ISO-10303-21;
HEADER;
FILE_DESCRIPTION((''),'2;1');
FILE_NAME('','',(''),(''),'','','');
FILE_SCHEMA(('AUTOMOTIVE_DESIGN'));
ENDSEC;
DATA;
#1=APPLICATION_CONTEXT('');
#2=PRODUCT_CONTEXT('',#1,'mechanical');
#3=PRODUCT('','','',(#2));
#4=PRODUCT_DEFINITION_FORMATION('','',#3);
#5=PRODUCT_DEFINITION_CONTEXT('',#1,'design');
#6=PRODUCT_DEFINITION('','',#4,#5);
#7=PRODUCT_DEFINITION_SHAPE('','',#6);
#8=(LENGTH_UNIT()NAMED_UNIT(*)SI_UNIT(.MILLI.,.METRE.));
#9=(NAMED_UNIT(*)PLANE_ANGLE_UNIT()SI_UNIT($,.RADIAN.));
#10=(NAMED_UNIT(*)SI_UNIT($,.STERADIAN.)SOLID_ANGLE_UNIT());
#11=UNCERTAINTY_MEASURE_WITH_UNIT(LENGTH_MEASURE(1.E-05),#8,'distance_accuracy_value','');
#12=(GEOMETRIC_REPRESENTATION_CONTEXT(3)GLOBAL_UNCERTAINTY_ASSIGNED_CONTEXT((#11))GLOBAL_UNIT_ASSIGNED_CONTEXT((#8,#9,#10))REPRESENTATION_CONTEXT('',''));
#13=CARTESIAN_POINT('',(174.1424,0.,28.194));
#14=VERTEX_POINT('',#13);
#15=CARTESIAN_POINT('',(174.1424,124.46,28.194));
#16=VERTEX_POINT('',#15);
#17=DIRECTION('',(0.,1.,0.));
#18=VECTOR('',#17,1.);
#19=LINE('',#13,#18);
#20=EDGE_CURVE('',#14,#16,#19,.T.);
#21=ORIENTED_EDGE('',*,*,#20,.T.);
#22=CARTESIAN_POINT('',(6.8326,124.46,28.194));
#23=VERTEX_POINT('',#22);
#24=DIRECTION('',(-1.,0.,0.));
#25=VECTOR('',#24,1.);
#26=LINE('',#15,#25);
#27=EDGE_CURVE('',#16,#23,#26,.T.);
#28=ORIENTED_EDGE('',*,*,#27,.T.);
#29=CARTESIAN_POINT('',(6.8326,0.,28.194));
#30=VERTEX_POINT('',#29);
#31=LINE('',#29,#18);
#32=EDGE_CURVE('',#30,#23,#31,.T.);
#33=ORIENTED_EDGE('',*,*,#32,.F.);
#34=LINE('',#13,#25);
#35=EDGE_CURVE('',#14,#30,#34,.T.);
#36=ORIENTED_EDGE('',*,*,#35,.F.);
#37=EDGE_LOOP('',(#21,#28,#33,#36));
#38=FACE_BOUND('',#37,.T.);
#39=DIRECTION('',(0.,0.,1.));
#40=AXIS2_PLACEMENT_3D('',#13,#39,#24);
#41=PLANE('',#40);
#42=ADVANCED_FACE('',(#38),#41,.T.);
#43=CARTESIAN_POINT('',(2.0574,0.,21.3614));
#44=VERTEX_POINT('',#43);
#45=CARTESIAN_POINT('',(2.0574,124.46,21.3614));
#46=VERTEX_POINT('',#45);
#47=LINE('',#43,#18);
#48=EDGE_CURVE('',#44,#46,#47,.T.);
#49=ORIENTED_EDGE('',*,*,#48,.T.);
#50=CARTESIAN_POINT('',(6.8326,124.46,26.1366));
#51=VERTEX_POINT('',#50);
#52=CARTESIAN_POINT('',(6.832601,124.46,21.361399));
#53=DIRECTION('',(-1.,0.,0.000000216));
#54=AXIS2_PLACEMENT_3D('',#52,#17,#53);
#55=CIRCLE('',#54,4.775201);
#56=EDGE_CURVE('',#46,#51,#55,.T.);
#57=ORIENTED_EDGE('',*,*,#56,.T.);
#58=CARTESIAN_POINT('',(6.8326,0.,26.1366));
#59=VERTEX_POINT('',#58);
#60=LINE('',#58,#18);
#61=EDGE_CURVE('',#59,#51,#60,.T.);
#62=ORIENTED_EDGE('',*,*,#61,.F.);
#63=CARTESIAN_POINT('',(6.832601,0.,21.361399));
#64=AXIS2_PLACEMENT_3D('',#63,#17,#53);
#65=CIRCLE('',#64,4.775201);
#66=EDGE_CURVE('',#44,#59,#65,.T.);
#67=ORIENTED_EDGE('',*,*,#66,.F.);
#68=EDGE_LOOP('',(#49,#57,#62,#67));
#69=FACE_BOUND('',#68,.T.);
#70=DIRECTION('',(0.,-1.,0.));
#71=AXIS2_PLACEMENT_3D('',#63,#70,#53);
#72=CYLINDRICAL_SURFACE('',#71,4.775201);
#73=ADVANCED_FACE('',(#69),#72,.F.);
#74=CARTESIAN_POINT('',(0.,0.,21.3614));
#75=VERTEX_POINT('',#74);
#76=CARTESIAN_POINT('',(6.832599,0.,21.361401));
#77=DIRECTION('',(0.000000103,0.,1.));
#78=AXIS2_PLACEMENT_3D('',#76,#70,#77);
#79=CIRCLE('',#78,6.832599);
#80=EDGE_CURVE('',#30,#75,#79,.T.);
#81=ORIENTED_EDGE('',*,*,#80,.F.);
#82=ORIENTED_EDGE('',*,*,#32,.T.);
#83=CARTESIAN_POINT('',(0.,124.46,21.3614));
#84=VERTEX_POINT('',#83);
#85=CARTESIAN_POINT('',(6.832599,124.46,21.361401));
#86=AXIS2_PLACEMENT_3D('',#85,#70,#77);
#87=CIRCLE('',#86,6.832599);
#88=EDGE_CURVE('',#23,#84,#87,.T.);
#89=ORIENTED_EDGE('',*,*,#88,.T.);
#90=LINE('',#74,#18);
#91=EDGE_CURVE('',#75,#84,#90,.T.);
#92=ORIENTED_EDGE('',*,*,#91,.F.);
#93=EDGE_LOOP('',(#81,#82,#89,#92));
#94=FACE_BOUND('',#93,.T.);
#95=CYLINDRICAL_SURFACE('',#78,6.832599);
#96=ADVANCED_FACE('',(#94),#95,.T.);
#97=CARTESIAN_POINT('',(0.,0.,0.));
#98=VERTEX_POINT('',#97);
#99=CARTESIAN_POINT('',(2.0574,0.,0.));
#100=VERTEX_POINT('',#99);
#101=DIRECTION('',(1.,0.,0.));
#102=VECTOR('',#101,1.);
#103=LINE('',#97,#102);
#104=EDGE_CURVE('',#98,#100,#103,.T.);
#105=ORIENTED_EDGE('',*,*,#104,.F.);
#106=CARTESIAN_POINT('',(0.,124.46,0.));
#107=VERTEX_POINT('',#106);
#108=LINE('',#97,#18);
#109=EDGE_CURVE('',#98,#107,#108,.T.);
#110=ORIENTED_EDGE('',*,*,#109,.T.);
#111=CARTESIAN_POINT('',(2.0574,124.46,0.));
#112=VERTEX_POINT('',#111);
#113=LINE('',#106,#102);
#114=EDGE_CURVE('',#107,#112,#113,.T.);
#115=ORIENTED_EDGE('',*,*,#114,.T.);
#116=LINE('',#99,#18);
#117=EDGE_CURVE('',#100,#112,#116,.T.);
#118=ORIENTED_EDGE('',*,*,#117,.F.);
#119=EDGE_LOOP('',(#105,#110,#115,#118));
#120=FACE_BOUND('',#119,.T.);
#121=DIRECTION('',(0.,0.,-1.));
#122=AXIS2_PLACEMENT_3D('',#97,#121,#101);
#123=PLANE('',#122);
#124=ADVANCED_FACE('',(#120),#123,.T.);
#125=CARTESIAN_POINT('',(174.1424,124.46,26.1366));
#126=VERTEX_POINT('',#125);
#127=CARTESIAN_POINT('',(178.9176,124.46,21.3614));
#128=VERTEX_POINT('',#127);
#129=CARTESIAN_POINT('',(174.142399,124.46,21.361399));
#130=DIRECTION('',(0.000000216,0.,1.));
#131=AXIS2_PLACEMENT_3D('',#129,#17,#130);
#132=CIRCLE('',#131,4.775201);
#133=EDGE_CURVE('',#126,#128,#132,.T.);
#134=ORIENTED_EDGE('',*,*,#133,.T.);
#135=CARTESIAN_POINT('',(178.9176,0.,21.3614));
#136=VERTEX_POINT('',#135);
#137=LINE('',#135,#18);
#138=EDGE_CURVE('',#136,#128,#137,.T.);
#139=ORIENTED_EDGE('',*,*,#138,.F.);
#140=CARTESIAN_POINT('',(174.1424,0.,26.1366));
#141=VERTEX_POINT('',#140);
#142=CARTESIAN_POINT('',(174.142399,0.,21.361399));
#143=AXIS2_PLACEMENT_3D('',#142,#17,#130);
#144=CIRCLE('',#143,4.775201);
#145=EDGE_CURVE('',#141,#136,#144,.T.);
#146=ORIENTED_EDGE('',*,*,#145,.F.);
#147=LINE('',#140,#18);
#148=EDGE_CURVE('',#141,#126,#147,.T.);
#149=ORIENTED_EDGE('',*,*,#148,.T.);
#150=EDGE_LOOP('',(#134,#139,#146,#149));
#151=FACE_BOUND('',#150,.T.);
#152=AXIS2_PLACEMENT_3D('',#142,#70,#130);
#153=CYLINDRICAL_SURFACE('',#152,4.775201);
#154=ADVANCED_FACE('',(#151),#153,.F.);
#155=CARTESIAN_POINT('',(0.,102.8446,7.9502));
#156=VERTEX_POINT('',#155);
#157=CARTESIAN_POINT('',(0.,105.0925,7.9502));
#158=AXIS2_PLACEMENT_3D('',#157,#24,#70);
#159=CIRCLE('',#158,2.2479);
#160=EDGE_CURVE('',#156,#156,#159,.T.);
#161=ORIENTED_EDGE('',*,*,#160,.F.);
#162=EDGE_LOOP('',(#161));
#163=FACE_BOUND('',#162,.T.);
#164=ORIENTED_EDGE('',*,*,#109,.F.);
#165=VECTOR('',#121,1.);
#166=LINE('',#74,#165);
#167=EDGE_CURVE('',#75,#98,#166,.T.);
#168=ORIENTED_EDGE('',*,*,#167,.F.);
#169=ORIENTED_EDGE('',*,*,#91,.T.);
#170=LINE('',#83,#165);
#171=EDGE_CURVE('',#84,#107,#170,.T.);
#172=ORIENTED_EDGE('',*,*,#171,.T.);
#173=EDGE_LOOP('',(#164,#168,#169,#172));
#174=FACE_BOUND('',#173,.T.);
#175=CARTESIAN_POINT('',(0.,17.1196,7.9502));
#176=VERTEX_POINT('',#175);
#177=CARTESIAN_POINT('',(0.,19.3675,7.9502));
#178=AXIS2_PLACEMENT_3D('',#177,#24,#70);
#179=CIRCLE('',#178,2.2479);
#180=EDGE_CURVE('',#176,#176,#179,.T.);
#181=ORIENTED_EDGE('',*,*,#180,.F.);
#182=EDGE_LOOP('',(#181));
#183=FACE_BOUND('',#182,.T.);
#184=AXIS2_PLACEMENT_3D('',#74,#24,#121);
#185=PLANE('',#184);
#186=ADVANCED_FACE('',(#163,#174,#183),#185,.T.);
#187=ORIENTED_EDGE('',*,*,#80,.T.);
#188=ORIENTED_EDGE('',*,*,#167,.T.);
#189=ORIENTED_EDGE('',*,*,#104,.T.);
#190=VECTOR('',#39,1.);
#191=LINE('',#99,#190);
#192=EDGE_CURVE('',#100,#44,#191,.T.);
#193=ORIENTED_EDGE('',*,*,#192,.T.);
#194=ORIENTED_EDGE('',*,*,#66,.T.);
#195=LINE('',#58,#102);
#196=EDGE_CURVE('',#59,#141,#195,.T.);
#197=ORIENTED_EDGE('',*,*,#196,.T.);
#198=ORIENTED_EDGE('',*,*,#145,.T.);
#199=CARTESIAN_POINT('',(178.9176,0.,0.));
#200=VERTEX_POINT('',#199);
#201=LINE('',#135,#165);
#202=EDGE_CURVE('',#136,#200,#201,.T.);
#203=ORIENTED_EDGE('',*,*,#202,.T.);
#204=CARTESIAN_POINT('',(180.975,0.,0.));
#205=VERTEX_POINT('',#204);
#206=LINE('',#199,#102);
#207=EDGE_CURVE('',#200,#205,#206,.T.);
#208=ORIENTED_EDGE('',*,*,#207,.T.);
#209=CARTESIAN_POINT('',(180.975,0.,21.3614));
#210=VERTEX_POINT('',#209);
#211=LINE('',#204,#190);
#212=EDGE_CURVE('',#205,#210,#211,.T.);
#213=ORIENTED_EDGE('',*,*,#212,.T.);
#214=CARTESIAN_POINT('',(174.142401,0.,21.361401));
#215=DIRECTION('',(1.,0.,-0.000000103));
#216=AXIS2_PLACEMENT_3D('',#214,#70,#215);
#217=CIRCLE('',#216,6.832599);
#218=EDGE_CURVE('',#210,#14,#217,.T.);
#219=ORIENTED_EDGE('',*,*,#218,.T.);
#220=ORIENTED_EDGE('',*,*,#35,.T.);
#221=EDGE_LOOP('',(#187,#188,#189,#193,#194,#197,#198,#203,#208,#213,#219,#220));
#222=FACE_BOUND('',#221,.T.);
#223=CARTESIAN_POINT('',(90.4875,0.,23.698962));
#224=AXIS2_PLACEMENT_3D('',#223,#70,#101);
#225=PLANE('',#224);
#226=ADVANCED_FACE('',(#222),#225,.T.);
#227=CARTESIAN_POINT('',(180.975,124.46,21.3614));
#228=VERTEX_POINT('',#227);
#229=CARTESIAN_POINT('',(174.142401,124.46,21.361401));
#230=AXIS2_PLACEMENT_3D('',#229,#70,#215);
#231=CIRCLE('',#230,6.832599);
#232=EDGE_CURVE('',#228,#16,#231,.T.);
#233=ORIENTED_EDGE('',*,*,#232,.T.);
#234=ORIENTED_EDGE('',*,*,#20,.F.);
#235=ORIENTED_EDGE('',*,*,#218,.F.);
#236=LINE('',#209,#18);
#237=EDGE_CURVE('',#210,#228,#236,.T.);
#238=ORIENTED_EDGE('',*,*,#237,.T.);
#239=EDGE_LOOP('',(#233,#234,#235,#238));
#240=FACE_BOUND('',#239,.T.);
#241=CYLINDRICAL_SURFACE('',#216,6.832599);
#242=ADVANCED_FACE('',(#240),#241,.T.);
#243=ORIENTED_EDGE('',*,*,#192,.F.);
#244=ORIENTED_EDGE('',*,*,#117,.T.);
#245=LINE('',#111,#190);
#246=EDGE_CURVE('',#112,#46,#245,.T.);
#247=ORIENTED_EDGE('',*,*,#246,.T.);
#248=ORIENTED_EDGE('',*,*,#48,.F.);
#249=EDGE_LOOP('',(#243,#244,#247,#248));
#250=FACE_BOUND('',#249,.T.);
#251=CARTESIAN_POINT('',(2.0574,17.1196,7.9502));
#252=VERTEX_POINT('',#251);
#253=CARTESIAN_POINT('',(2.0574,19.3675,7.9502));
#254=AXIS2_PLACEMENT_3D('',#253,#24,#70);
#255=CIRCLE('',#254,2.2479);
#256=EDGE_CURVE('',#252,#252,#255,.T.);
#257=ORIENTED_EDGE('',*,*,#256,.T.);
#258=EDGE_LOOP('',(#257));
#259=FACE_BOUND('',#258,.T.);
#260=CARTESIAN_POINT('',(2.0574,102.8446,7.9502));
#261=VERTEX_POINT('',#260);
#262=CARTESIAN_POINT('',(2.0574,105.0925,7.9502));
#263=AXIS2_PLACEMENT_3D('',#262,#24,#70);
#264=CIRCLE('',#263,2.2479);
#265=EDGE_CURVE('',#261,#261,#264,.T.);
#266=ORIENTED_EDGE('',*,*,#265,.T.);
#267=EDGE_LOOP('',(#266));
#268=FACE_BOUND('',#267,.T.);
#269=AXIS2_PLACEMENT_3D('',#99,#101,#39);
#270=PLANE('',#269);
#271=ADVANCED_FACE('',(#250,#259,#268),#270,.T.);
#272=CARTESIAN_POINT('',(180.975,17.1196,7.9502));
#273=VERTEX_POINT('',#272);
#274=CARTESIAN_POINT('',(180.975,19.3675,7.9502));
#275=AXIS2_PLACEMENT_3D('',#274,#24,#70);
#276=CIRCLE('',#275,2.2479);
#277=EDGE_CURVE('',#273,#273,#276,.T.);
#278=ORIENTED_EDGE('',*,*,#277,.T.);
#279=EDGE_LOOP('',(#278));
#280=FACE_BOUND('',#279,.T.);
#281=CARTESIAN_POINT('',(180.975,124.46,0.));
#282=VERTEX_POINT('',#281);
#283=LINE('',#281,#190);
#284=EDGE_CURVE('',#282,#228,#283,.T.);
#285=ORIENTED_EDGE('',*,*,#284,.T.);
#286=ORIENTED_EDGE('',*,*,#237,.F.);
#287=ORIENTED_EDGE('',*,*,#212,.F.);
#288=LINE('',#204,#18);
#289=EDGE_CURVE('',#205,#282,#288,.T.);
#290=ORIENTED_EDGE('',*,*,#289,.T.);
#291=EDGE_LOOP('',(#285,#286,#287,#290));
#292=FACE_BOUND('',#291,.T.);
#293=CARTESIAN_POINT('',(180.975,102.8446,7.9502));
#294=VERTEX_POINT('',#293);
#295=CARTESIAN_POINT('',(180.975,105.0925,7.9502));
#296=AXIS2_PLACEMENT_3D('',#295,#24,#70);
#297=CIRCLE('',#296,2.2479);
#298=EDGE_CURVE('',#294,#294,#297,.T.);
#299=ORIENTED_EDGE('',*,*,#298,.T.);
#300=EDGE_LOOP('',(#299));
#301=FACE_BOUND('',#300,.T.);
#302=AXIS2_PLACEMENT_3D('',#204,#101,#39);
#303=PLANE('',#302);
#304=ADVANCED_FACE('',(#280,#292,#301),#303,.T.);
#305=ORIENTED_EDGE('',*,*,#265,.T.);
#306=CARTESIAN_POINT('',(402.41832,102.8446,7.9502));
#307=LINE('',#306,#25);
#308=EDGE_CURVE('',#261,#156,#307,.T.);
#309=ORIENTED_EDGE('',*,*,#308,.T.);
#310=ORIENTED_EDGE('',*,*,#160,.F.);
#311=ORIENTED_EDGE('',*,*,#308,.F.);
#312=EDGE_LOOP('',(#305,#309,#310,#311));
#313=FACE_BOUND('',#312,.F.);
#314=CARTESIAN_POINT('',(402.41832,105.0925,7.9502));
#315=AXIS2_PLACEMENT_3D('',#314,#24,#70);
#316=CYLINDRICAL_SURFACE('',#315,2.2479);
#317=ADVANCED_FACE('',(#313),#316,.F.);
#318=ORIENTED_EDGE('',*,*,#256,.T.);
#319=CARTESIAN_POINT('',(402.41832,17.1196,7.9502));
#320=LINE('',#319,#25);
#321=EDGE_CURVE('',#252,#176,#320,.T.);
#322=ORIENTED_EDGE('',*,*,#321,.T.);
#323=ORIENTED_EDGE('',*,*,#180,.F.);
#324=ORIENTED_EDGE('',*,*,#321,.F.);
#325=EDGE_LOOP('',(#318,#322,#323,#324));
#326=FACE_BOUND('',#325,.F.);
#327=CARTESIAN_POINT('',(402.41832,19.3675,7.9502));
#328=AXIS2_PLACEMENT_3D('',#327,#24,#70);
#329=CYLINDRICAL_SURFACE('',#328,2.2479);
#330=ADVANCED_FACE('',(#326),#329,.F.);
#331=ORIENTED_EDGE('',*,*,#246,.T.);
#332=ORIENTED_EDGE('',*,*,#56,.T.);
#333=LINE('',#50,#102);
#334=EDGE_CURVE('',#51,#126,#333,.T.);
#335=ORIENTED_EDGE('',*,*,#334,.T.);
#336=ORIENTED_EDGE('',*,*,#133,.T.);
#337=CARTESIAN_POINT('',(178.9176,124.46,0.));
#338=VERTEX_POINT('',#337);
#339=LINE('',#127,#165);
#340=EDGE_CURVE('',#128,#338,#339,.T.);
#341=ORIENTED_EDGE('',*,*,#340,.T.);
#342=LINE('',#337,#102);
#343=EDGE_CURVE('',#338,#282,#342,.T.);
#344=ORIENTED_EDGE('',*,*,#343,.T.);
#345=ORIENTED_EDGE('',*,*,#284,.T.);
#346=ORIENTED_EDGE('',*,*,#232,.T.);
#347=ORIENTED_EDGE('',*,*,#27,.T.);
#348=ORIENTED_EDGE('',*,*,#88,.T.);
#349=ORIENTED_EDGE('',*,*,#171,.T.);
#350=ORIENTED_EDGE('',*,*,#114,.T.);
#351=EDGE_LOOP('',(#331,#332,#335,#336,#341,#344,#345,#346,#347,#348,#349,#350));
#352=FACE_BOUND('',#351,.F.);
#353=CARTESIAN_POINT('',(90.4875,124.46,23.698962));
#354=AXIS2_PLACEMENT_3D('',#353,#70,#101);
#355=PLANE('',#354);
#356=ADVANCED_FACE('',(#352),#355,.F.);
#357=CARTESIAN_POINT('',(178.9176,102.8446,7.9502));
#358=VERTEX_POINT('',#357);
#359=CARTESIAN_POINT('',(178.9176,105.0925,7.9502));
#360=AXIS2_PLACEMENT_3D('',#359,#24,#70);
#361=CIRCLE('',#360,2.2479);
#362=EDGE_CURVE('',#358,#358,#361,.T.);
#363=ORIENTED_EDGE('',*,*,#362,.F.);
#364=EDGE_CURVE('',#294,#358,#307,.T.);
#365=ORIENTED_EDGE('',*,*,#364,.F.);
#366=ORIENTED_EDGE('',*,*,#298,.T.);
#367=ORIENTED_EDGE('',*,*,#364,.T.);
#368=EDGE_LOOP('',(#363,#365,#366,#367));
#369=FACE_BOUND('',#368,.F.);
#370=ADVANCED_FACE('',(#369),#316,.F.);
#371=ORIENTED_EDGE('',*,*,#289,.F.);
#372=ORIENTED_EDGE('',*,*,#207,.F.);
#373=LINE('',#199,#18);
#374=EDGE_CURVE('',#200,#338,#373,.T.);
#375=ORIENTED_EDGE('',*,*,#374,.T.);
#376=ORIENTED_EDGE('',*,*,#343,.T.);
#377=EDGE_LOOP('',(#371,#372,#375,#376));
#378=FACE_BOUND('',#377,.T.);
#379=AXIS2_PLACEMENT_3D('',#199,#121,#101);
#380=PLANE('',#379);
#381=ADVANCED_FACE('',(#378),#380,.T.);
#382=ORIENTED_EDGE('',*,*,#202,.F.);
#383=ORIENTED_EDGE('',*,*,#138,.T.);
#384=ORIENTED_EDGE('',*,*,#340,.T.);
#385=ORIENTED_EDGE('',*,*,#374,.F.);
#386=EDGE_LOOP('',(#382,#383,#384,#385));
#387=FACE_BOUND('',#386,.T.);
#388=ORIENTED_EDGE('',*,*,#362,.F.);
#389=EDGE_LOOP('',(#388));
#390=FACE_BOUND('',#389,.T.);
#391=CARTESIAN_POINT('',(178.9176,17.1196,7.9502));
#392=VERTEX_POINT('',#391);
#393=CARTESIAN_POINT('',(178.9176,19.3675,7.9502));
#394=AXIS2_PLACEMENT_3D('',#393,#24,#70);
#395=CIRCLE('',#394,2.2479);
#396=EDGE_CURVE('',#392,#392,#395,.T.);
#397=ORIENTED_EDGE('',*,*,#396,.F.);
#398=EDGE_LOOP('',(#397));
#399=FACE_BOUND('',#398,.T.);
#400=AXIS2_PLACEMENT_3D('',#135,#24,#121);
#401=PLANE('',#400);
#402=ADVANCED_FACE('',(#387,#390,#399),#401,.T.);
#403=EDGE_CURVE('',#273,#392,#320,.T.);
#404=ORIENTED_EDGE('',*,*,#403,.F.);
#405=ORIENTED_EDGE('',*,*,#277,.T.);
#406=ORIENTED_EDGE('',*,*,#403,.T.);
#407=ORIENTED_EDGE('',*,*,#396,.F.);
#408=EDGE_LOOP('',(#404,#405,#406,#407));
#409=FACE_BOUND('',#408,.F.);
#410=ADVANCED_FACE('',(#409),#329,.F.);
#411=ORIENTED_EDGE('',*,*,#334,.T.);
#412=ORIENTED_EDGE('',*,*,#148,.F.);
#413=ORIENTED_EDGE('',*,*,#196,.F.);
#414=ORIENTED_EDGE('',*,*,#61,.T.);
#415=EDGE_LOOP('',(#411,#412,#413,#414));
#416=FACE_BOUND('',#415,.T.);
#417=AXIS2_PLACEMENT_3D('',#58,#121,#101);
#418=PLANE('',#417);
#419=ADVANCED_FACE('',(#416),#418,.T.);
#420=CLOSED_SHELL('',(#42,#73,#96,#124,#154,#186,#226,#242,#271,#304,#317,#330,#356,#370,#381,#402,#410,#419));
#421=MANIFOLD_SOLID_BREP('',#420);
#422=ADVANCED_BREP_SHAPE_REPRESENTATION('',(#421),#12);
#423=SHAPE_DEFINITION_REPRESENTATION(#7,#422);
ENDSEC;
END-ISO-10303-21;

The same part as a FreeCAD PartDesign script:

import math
import FreeCAD as App
import Part
import Sketcher
Q = App.Units.Quantity

doc = App.newDocument("Part")
body = doc.addObject("PartDesign::Body", "Body")

sketch1 = doc.addObject("Sketcher::SketchObject", "Sketch")
body.addObject(sketch1)
sketch1.AttachmentSupport = (doc.XZ_Plane, [""])
sketch1.MapMode = "FlatFace"
sketch1.addGeometry([
    Part.LineSegment(App.Vector(0, 21.4, 0), App.Vector(0, 0, 0)),
    Part.LineSegment(App.Vector(0, 0, 0), App.Vector(2.1, 0, 0)),
    Part.LineSegment(App.Vector(2.1, 0, 0), App.Vector(2.1, 21.4, 0)),
    Part.ArcOfCircle(Part.Circle(App.Vector(6.8, 21.4, 0), App.Vector(0, 0, 1), 4.8), math.radians(90), math.radians(180)),
    Part.LineSegment(App.Vector(6.8, 26.1, 0), App.Vector(174.1, 26.1, 0)),
    Part.ArcOfCircle(Part.Circle(App.Vector(174.1, 21.4, 0), App.Vector(0, 0, 1), 4.8), math.radians(0), math.radians(90)),
    Part.LineSegment(App.Vector(178.9, 21.4, 0), App.Vector(178.9, 0, 0)),
    Part.LineSegment(App.Vector(178.9, 0, 0), App.Vector(181, 0, 0)),
    Part.LineSegment(App.Vector(181, 0, 0), App.Vector(181, 21.4, 0)),
    Part.ArcOfCircle(Part.Circle(App.Vector(174.1, 21.4, 0), App.Vector(0, 0, 1), 6.8), math.radians(0), math.radians(90)),
    Part.LineSegment(App.Vector(174.1, 28.2, 0), App.Vector(6.8, 28.2, 0)),
    Part.ArcOfCircle(Part.Circle(App.Vector(6.8, 21.4, 0), App.Vector(0, 0, 1), 6.8), math.radians(90), math.radians(180)),
], False)
sketch1.addConstraint([
    Sketcher.Constraint("Coincident", 0, 2, 1, 1),
    Sketcher.Constraint("Coincident", 1, 2, 2, 1),
    Sketcher.Constraint("Tangent", 2, 2, 3, 2),
    Sketcher.Constraint("Tangent", 3, 1, 4, 1),
    Sketcher.Constraint("Tangent", 4, 2, 5, 2),
    Sketcher.Constraint("Tangent", 5, 1, 6, 1),
    Sketcher.Constraint("Coincident", 6, 2, 7, 1),
    Sketcher.Constraint("Coincident", 7, 2, 8, 1),
    Sketcher.Constraint("Tangent", 8, 2, 9, 1),
    Sketcher.Constraint("Tangent", 9, 2, 10, 1),
    Sketcher.Constraint("Tangent", 10, 2, 11, 1),
    Sketcher.Constraint("Tangent", 11, 2, 0, 1),
    Sketcher.Constraint("Vertical", 0),
    Sketcher.Constraint("Horizontal", 1),
    Sketcher.Constraint("Vertical", 2),
    Sketcher.Constraint("Horizontal", 4),
    Sketcher.Constraint("Vertical", 6),
    Sketcher.Constraint("Horizontal", 7),
    Sketcher.Constraint("Vertical", 8),
    Sketcher.Constraint("Horizontal", 10),
    Sketcher.Constraint("Coincident", 0, 2, -1, 1),
    Sketcher.Constraint("Coincident", 9, 3, 5, 3),
    Sketcher.Constraint("Coincident", 11, 3, 3, 3),
    Sketcher.Constraint("Equal", 3, 5),
    Sketcher.Constraint("PointOnObject", 6, 2, -1),
    Sketcher.Constraint("Radius", 3, Q("0.188 in")),
    Sketcher.Constraint("Radius", 9, Q("0.269 in")),
    Sketcher.Constraint("DistanceX", 4, 1, 4, 2, Q("6.587 in")),
    Sketcher.Constraint("DistanceY", 0, 2, 0, 1, Q("0.841 in")),
])
pad1 = doc.addObject("PartDesign::Pad", "Pad")
body.addObject(pad1)
pad1.Profile = sketch1
pad1.Length = Q("4.9 in")
pad1.Reversed = True

sketch2 = doc.addObject("Sketcher::SketchObject", "Sketch001")
body.addObject(sketch2)
sketch2.AttachmentSupport = (doc.YZ_Plane, [""])
sketch2.MapMode = "FlatFace"
sketch2.AttachmentOffset = App.Placement(App.Vector(0, 0, 7.125 * 25.4), App.Rotation())
sketch2.addGeometry([
    Part.Circle(App.Vector(19.4, 8, 0), App.Vector(0, 0, 1), 2.2),
    Part.Circle(App.Vector(105.1, 8, 0), App.Vector(0, 0, 1), 2.2),
], False)
sketch2.addConstraint([
    Sketcher.Constraint("Equal", 0, 1),
    Sketcher.Constraint("Horizontal", 0, 3, 1, 3),
    Sketcher.Constraint("Diameter", 0, Q("0.177 in")),
    Sketcher.Constraint("DistanceY", -1, 1, 0, 3, Q("0.313 in")),
    Sketcher.Constraint("DistanceX", 0, 3, 1, 3, Q("3.375 in")),
    Sketcher.Constraint("DistanceX", -1, 1, 0, 3, Q("0.7625 in")),
])
doc.recompute()
hole = doc.addObject("PartDesign::Hole", "Hole")
body.addObject(hole)
hole.Profile = sketch2
hole.ThreadType = "None"
hole.Diameter = Q("0.177 in")
hole.DepthType = "ThroughAll"

doc.recompute()
